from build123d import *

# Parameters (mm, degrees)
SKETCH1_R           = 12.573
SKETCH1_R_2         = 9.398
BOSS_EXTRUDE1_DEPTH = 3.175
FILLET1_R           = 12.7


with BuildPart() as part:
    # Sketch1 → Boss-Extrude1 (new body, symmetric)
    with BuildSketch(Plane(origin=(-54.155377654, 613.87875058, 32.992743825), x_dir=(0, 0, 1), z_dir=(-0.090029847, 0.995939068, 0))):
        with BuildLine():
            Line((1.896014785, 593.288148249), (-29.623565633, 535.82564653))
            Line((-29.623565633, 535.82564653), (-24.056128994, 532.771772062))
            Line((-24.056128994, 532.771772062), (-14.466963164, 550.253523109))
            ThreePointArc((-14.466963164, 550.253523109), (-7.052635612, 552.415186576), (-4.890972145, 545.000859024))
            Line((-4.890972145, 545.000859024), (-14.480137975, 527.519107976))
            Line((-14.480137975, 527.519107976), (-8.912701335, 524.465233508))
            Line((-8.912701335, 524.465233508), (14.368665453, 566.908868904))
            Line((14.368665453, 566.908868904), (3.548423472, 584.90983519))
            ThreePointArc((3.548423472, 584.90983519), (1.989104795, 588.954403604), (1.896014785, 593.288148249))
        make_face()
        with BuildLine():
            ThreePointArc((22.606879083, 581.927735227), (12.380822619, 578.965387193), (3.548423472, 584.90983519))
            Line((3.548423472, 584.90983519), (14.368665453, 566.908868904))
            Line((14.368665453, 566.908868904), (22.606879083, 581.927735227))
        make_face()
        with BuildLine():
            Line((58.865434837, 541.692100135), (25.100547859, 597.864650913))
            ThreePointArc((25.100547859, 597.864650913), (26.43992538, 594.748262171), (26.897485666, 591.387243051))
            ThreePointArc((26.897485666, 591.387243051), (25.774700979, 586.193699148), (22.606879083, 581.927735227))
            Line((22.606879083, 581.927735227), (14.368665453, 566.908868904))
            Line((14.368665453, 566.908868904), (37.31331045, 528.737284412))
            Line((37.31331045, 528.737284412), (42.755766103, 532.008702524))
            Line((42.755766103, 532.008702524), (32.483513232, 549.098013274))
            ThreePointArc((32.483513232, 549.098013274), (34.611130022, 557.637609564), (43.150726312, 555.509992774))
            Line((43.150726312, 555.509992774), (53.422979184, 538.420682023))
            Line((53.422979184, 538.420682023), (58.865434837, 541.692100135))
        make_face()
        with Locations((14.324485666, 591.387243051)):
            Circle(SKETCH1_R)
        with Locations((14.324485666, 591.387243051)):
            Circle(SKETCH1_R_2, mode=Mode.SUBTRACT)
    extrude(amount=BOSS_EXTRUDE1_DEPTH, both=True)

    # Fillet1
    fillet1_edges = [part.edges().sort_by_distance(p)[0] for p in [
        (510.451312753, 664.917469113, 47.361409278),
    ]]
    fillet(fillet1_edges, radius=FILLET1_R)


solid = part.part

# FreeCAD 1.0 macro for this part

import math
import FreeCAD as App
import Part
import Sketcher
Q = App.Units.Quantity


def edges_at(feature, points):
    """Names of the edges that pass closest to the given points."""
    edges = feature.Shape.Edges
    near = lambda p: min(range(len(edges)), key=lambda i: edges[i].distToShape(Part.Vertex(*p))[0])
    return sorted({f"Edge{near(p) + 1}" for p in points})

doc = App.newDocument("Part")
body = doc.addObject("PartDesign::Body", "Body")

# Sketch on an angled plane
sketch1 = doc.addObject("Sketcher::SketchObject", "Sketch")
body.addObject(sketch1)
sketch1.Placement = App.Placement(App.Vector(-54.155378, 613.878751, 32.992744), App.Rotation(App.Vector(0, 0, 1), App.Vector(0.995939068, 0.090029847, 0), App.Vector(-0.090029847, 0.995939068, 0), "ZXY"))
sketch1.addGeometry([
    Part.LineSegment(App.Vector(1.896015, 593.288149, 0), App.Vector(-29.623566, 535.825647, 0)),  # 0
    Part.LineSegment(App.Vector(-29.623566, 535.825647, 0), App.Vector(-24.056129, 532.771772, 0)),  # 1
    Part.LineSegment(App.Vector(-24.056129, 532.771772, 0), App.Vector(-14.466963, 550.253523, 0)),  # 2
    Part.ArcOfCircle(Part.Circle(App.Vector(-9.678968, 547.627191, 0), App.Vector(0, 0, 1), 5.461), math.radians(-28.74584), math.radians(151.25416)),  # 3
    Part.LineSegment(App.Vector(-4.890972, 545.000859, 0), App.Vector(-14.480138, 527.519108, 0)),  # 4
    Part.LineSegment(App.Vector(-14.480138, 527.519108, 0), App.Vector(-8.912701, 524.465234, 0)),  # 5
    Part.LineSegment(App.Vector(-8.912701, 524.465234, 0), App.Vector(14.368665, 566.908869, 0)),  # 6
    Part.LineSegment(App.Vector(14.368665, 566.908869, 0), App.Vector(37.31331, 528.737285, 0)),  # 7
    Part.LineSegment(App.Vector(37.31331, 528.737285, 0), App.Vector(42.755766, 532.008703, 0)),  # 8
    Part.LineSegment(App.Vector(42.755766, 532.008703, 0), App.Vector(32.483513, 549.098014, 0)),  # 9
    Part.ArcOfCircle(Part.Circle(App.Vector(37.81712, 552.304003, 0), App.Vector(0, 0, 1), 6.223), math.radians(31.009752), math.radians(211.009752)),  # 10
    Part.LineSegment(App.Vector(43.150726, 555.509993, 0), App.Vector(53.422979, 538.420682, 0)),  # 11
    Part.LineSegment(App.Vector(53.422979, 538.420682, 0), App.Vector(58.865435, 541.6921, 0)),  # 12
    Part.LineSegment(App.Vector(58.865435, 541.6921, 0), App.Vector(25.100548, 597.864651, 0)),  # 13
    Part.ArcOfCircle(Part.Circle(App.Vector(14.324486, 591.387243, 0), App.Vector(0, 0, 1), 12.573), math.radians(31.009752), math.radians(171.304136)),  # 14
    Part.Circle(App.Vector(14.324486, 591.387243, 0), App.Vector(0, 0, 1), 9.398),  # 15
], False)
sketch1.addConstraint([
    Sketcher.Constraint("Coincident", 0, 2, 1, 1),
    Sketcher.Constraint("Coincident", 1, 2, 2, 1),
    Sketcher.Constraint("Tangent", 2, 2, 3, 2),
    Sketcher.Constraint("Tangent", 3, 1, 4, 1),
    Sketcher.Constraint("Coincident", 4, 2, 5, 1),
    Sketcher.Constraint("Coincident", 5, 2, 6, 1),
    Sketcher.Constraint("Coincident", 6, 2, 7, 1),
    Sketcher.Constraint("Coincident", 7, 2, 8, 1),
    Sketcher.Constraint("Coincident", 8, 2, 9, 1),
    Sketcher.Constraint("Tangent", 9, 2, 10, 2),
    Sketcher.Constraint("Tangent", 10, 1, 11, 1),
    Sketcher.Constraint("Coincident", 11, 2, 12, 1),
    Sketcher.Constraint("Coincident", 12, 2, 13, 1),
    Sketcher.Constraint("Tangent", 13, 2, 14, 1),
    Sketcher.Constraint("Coincident", 14, 2, 0, 1),
    Sketcher.Constraint("Coincident", 15, 3, 14, 3),
    Sketcher.Constraint("Perpendicular", 0, 1),
    Sketcher.Constraint("Perpendicular", 1, 2),
    Sketcher.Constraint("Parallel", 2, 4),
    Sketcher.Constraint("Perpendicular", 4, 5),
    Sketcher.Constraint("Perpendicular", 5, 6),
    Sketcher.Constraint("Perpendicular", 7, 8),
    Sketcher.Constraint("Perpendicular", 8, 9),
    Sketcher.Constraint("Parallel", 9, 11),
    Sketcher.Constraint("Perpendicular", 11, 12),
    Sketcher.Constraint("Perpendicular", 12, 13),
    Sketcher.Constraint("Equal", 2, 4),
    Sketcher.Constraint("Equal", 1, 5),
    Sketcher.Constraint("Equal", 5, 8),
    Sketcher.Constraint("Equal", 4, 9),
    Sketcher.Constraint("Equal", 9, 11),
    Sketcher.Constraint("Equal", 8, 12),
    Sketcher.Constraint("Equal", 0, 13),
    Sketcher.Constraint("Diameter", 15, Q("0.74 in")),
    Sketcher.Constraint("Radius", 3, Q("0.215 in")),
    Sketcher.Constraint("Radius", 10, Q("0.245 in")),
    Sketcher.Constraint("Radius", 14, Q("0.495 in")),
    Sketcher.Constraint("Distance", 1, Q("0.25 in")),
    Sketcher.Constraint("Distance", 2, Q("0.785 in")),
    Sketcher.Constraint("Distance", 7, 44.5368),
    Sketcher.Constraint("DistanceX", 5, 2, -1, 1, 8.912701),
    Sketcher.Constraint("DistanceY", -1, 1, 12, 2, 541.6921),
    Sketcher.Constraint("DistanceY", 8, 2, 10, 3, 20.295301),
    Sketcher.Constraint("DistanceY", -1, 1, 3, 3, 547.627191),
    Sketcher.Constraint("DistanceX", -1, 1, 10, 3, 37.81712),
])
pad1 = doc.addObject("PartDesign::Pad", "Pad")
body.addObject(pad1)
pad1.Profile = sketch1
pad1.Length = Q("0.25 in")
pad1.Midplane = True
doc.recompute()

fillet = doc.addObject("PartDesign::Fillet", "Fillet")
body.addObject(fillet)
fillet.Base = (pad1, edges_at(pad1, [(510.451, 664.917, 47.361)]))
fillet.Radius = Q("0.5 in")

doc.recompute()
